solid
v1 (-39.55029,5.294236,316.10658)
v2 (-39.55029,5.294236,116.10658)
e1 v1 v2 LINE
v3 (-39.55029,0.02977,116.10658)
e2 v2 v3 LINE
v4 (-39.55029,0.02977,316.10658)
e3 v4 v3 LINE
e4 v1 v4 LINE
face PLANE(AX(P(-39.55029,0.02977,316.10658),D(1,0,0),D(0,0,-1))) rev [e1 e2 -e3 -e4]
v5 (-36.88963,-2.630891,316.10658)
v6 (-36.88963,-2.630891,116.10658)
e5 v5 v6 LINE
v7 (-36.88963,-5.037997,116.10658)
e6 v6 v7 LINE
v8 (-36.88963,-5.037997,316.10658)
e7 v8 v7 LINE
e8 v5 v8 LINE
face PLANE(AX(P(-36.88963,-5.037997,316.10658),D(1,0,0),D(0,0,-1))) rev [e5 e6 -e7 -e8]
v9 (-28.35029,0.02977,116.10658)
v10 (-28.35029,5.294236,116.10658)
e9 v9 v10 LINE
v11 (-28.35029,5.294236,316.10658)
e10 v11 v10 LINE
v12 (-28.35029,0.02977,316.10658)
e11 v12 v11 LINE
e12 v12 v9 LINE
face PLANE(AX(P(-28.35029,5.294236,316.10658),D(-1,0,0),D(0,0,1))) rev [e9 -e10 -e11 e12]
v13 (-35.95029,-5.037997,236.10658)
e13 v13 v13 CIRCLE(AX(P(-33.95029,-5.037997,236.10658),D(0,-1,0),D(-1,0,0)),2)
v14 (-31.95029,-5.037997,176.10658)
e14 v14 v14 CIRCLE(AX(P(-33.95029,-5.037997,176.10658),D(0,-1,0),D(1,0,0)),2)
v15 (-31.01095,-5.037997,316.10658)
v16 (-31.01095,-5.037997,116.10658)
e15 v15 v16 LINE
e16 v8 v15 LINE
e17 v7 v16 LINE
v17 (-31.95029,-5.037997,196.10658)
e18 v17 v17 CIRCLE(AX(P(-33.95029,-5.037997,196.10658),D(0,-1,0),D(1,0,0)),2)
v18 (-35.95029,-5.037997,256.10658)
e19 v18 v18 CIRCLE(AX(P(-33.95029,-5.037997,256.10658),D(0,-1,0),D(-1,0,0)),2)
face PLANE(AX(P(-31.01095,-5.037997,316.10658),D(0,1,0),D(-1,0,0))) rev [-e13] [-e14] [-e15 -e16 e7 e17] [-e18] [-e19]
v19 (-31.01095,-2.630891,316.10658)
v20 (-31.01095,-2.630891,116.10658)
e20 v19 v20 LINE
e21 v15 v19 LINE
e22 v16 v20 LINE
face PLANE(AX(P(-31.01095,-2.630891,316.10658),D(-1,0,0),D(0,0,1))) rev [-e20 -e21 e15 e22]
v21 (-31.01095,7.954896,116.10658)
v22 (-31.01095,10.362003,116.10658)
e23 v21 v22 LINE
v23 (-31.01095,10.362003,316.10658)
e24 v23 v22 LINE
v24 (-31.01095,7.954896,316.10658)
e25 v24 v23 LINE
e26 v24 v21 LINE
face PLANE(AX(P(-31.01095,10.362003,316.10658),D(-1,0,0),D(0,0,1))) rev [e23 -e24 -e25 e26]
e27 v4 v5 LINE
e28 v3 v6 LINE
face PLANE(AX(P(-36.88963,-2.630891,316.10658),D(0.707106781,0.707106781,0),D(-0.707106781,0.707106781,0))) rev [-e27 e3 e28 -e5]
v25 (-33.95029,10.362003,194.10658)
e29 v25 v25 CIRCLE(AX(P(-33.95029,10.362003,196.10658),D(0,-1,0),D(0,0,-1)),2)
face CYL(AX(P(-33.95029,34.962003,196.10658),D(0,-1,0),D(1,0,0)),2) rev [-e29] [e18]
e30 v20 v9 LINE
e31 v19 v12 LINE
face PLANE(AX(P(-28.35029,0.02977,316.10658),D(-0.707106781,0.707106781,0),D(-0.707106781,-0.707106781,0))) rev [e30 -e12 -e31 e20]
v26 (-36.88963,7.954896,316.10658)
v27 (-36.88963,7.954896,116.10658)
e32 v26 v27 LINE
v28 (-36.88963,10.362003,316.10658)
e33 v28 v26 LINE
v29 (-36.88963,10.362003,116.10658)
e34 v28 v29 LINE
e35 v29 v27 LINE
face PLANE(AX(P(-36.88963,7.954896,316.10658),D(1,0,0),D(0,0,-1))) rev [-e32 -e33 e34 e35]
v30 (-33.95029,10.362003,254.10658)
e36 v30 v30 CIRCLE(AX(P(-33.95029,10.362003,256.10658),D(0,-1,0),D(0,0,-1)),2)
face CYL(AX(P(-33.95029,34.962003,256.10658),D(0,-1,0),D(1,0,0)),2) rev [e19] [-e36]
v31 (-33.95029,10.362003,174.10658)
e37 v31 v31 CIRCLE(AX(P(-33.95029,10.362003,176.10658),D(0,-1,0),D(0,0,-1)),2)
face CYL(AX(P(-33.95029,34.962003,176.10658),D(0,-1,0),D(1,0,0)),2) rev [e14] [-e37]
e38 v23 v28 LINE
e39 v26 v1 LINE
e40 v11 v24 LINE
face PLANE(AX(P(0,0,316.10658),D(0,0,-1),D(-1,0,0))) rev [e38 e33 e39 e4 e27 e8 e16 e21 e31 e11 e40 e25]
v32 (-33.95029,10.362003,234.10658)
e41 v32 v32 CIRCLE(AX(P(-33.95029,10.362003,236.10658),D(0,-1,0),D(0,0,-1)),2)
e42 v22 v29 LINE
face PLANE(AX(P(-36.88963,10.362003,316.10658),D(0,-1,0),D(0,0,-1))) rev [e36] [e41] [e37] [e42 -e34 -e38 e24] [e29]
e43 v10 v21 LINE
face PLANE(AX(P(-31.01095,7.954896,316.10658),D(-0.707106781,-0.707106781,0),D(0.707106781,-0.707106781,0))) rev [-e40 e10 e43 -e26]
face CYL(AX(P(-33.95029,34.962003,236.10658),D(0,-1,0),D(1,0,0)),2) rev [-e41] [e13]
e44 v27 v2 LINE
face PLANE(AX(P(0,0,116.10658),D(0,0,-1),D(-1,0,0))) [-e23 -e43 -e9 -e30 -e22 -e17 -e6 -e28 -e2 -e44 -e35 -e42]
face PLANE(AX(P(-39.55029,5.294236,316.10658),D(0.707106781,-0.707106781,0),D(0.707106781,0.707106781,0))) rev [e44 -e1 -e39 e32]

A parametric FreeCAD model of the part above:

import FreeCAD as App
import Part
import Sketcher
from FreeCAD import Vector


def add_polygon(sketch, points):
    """Adds a closed chain of lines whose ends are joined by coincident constraints."""
    first, n = sketch.GeometryCount, len(points)
    for a, b in zip(points, points[1:] + points[:1]):
        sketch.addGeometry(Part.LineSegment(App.Vector(*a, 0), App.Vector(*b, 0)), False)
    for i in range(n):
        sketch.addConstraint(Sketcher.Constraint("Coincident", first + i, 2, first + (i + 1) % n, 1))

doc = App.newDocument("Part")
body = doc.addObject("PartDesign::Body", "Body")

sketch1 = body.newObject("Sketcher::SketchObject", "Sketch")
sketch1.AttachmentSupport = (doc.getObject("XY_Plane"), [""])
sketch1.MapMode = "FlatFace"
sketch1.AttachmentOffset = App.Placement(Vector(0, 0, 116.10658), App.Rotation())
add_polygon(sketch1, [(-36.9, 8), (-39.6, 5.3), (-39.6, 0), (-36.9, -2.6), (-36.9, -5), (-31, -5), (-31, -2.6), (-28.4, 0), (-28.4, 5.3), (-31, 8), (-31, 10.4), (-36.9, 10.4)])
sketch1.addConstraint([
    Sketcher.Constraint("Vertical", 1),
    Sketcher.Constraint("Vertical", 3),
    Sketcher.Constraint("Horizontal", 4),
    Sketcher.Constraint("Vertical", 5),
    Sketcher.Constraint("Vertical", 7),
    Sketcher.Constraint("Vertical", 9),
    Sketcher.Constraint("Horizontal", 10),
    Sketcher.Constraint("Vertical", 11),
    Sketcher.Constraint("Perpendicular", 0, 2),
    Sketcher.Constraint("Perpendicular", 2, 6),
    Sketcher.Constraint("Perpendicular", 6, 8),
    Sketcher.Constraint("Horizontal", 2, 2, 5, 2),
    Sketcher.Constraint("Horizontal", 1, 2, 6, 2),
    Sketcher.Constraint("Horizontal", 0, 2, 7, 2),
    Sketcher.Constraint("Horizontal", 8, 2, 11, 2),
    Sketcher.Constraint("Vertical", 5, 2, 8, 2),
    Sketcher.Constraint("Vertical", 3, 2, 10, 2),
    Sketcher.Constraint("Equal", 5, 9),
    Sketcher.Constraint("DistanceX", 1, 2, 6, 2, 11.2),
    Sketcher.Constraint("DistanceX", 4, 1, 4, 2, 5.87868),
    Sketcher.Constraint("DistanceY", 1, 2, 1, 1, 5.264466),
    Sketcher.Constraint("DistanceY", 3, 2, 3, 1, 2.407107),
    Sketcher.Constraint("DistanceX", 0, 2, -1, 1, 39.55029),
    Sketcher.Constraint("DistanceY", -1, 1, 1, 2, 0.02977),
])
pad1 = body.newObject("PartDesign::Pad", "Pad")
pad1.Profile = sketch1
pad1.Length = 200

sketch2 = body.newObject("Sketcher::SketchObject", "Sketch001")
sketch2.AttachmentSupport = (doc.getObject("XZ_Plane"), [""])
sketch2.MapMode = "FlatFace"
sketch2.AttachmentOffset = App.Placement(Vector(0, 0, 5.037997), App.Rotation())
sketch2.addGeometry([
    Part.Circle(Vector(-34, 176.1, 0), Vector(0, 0, 1), 2),
    Part.Circle(Vector(-34, 196.1, 0), Vector(0, 0, 1), 2),
    Part.Circle(Vector(-34, 236.1, 0), Vector(0, 0, 1), 2),
    Part.Circle(Vector(-34, 256.1, 0), Vector(0, 0, 1), 2),
], False)
sketch2.addConstraint([
    Sketcher.Constraint("Equal", 0, 1),
    Sketcher.Constraint("Equal", 1, 2),
    Sketcher.Constraint("Equal", 2, 3),
    Sketcher.Constraint("Vertical", 0, 3, 1, 3),
    Sketcher.Constraint("Vertical", 1, 3, 2, 3),
    Sketcher.Constraint("Vertical", 2, 3, 3, 3),
    Sketcher.Constraint("Diameter", 0, 4.0),
    Sketcher.Constraint("DistanceY", 0, 3, 1, 3, 20.0),
    Sketcher.Constraint("DistanceY", 1, 3, 2, 3, 40.0),
    Sketcher.Constraint("DistanceY", 2, 3, 3, 3, 20.0),
    Sketcher.Constraint("DistanceX", 0, 3, -1, 1, 33.95029),
    Sketcher.Constraint("DistanceY", -1, 1, 0, 3, 176.10658),
])
pocket1 = body.newObject("PartDesign::Pocket", "Pocket")
pocket1.Profile = sketch2
pocket1.Length = 40

doc.recompute()
